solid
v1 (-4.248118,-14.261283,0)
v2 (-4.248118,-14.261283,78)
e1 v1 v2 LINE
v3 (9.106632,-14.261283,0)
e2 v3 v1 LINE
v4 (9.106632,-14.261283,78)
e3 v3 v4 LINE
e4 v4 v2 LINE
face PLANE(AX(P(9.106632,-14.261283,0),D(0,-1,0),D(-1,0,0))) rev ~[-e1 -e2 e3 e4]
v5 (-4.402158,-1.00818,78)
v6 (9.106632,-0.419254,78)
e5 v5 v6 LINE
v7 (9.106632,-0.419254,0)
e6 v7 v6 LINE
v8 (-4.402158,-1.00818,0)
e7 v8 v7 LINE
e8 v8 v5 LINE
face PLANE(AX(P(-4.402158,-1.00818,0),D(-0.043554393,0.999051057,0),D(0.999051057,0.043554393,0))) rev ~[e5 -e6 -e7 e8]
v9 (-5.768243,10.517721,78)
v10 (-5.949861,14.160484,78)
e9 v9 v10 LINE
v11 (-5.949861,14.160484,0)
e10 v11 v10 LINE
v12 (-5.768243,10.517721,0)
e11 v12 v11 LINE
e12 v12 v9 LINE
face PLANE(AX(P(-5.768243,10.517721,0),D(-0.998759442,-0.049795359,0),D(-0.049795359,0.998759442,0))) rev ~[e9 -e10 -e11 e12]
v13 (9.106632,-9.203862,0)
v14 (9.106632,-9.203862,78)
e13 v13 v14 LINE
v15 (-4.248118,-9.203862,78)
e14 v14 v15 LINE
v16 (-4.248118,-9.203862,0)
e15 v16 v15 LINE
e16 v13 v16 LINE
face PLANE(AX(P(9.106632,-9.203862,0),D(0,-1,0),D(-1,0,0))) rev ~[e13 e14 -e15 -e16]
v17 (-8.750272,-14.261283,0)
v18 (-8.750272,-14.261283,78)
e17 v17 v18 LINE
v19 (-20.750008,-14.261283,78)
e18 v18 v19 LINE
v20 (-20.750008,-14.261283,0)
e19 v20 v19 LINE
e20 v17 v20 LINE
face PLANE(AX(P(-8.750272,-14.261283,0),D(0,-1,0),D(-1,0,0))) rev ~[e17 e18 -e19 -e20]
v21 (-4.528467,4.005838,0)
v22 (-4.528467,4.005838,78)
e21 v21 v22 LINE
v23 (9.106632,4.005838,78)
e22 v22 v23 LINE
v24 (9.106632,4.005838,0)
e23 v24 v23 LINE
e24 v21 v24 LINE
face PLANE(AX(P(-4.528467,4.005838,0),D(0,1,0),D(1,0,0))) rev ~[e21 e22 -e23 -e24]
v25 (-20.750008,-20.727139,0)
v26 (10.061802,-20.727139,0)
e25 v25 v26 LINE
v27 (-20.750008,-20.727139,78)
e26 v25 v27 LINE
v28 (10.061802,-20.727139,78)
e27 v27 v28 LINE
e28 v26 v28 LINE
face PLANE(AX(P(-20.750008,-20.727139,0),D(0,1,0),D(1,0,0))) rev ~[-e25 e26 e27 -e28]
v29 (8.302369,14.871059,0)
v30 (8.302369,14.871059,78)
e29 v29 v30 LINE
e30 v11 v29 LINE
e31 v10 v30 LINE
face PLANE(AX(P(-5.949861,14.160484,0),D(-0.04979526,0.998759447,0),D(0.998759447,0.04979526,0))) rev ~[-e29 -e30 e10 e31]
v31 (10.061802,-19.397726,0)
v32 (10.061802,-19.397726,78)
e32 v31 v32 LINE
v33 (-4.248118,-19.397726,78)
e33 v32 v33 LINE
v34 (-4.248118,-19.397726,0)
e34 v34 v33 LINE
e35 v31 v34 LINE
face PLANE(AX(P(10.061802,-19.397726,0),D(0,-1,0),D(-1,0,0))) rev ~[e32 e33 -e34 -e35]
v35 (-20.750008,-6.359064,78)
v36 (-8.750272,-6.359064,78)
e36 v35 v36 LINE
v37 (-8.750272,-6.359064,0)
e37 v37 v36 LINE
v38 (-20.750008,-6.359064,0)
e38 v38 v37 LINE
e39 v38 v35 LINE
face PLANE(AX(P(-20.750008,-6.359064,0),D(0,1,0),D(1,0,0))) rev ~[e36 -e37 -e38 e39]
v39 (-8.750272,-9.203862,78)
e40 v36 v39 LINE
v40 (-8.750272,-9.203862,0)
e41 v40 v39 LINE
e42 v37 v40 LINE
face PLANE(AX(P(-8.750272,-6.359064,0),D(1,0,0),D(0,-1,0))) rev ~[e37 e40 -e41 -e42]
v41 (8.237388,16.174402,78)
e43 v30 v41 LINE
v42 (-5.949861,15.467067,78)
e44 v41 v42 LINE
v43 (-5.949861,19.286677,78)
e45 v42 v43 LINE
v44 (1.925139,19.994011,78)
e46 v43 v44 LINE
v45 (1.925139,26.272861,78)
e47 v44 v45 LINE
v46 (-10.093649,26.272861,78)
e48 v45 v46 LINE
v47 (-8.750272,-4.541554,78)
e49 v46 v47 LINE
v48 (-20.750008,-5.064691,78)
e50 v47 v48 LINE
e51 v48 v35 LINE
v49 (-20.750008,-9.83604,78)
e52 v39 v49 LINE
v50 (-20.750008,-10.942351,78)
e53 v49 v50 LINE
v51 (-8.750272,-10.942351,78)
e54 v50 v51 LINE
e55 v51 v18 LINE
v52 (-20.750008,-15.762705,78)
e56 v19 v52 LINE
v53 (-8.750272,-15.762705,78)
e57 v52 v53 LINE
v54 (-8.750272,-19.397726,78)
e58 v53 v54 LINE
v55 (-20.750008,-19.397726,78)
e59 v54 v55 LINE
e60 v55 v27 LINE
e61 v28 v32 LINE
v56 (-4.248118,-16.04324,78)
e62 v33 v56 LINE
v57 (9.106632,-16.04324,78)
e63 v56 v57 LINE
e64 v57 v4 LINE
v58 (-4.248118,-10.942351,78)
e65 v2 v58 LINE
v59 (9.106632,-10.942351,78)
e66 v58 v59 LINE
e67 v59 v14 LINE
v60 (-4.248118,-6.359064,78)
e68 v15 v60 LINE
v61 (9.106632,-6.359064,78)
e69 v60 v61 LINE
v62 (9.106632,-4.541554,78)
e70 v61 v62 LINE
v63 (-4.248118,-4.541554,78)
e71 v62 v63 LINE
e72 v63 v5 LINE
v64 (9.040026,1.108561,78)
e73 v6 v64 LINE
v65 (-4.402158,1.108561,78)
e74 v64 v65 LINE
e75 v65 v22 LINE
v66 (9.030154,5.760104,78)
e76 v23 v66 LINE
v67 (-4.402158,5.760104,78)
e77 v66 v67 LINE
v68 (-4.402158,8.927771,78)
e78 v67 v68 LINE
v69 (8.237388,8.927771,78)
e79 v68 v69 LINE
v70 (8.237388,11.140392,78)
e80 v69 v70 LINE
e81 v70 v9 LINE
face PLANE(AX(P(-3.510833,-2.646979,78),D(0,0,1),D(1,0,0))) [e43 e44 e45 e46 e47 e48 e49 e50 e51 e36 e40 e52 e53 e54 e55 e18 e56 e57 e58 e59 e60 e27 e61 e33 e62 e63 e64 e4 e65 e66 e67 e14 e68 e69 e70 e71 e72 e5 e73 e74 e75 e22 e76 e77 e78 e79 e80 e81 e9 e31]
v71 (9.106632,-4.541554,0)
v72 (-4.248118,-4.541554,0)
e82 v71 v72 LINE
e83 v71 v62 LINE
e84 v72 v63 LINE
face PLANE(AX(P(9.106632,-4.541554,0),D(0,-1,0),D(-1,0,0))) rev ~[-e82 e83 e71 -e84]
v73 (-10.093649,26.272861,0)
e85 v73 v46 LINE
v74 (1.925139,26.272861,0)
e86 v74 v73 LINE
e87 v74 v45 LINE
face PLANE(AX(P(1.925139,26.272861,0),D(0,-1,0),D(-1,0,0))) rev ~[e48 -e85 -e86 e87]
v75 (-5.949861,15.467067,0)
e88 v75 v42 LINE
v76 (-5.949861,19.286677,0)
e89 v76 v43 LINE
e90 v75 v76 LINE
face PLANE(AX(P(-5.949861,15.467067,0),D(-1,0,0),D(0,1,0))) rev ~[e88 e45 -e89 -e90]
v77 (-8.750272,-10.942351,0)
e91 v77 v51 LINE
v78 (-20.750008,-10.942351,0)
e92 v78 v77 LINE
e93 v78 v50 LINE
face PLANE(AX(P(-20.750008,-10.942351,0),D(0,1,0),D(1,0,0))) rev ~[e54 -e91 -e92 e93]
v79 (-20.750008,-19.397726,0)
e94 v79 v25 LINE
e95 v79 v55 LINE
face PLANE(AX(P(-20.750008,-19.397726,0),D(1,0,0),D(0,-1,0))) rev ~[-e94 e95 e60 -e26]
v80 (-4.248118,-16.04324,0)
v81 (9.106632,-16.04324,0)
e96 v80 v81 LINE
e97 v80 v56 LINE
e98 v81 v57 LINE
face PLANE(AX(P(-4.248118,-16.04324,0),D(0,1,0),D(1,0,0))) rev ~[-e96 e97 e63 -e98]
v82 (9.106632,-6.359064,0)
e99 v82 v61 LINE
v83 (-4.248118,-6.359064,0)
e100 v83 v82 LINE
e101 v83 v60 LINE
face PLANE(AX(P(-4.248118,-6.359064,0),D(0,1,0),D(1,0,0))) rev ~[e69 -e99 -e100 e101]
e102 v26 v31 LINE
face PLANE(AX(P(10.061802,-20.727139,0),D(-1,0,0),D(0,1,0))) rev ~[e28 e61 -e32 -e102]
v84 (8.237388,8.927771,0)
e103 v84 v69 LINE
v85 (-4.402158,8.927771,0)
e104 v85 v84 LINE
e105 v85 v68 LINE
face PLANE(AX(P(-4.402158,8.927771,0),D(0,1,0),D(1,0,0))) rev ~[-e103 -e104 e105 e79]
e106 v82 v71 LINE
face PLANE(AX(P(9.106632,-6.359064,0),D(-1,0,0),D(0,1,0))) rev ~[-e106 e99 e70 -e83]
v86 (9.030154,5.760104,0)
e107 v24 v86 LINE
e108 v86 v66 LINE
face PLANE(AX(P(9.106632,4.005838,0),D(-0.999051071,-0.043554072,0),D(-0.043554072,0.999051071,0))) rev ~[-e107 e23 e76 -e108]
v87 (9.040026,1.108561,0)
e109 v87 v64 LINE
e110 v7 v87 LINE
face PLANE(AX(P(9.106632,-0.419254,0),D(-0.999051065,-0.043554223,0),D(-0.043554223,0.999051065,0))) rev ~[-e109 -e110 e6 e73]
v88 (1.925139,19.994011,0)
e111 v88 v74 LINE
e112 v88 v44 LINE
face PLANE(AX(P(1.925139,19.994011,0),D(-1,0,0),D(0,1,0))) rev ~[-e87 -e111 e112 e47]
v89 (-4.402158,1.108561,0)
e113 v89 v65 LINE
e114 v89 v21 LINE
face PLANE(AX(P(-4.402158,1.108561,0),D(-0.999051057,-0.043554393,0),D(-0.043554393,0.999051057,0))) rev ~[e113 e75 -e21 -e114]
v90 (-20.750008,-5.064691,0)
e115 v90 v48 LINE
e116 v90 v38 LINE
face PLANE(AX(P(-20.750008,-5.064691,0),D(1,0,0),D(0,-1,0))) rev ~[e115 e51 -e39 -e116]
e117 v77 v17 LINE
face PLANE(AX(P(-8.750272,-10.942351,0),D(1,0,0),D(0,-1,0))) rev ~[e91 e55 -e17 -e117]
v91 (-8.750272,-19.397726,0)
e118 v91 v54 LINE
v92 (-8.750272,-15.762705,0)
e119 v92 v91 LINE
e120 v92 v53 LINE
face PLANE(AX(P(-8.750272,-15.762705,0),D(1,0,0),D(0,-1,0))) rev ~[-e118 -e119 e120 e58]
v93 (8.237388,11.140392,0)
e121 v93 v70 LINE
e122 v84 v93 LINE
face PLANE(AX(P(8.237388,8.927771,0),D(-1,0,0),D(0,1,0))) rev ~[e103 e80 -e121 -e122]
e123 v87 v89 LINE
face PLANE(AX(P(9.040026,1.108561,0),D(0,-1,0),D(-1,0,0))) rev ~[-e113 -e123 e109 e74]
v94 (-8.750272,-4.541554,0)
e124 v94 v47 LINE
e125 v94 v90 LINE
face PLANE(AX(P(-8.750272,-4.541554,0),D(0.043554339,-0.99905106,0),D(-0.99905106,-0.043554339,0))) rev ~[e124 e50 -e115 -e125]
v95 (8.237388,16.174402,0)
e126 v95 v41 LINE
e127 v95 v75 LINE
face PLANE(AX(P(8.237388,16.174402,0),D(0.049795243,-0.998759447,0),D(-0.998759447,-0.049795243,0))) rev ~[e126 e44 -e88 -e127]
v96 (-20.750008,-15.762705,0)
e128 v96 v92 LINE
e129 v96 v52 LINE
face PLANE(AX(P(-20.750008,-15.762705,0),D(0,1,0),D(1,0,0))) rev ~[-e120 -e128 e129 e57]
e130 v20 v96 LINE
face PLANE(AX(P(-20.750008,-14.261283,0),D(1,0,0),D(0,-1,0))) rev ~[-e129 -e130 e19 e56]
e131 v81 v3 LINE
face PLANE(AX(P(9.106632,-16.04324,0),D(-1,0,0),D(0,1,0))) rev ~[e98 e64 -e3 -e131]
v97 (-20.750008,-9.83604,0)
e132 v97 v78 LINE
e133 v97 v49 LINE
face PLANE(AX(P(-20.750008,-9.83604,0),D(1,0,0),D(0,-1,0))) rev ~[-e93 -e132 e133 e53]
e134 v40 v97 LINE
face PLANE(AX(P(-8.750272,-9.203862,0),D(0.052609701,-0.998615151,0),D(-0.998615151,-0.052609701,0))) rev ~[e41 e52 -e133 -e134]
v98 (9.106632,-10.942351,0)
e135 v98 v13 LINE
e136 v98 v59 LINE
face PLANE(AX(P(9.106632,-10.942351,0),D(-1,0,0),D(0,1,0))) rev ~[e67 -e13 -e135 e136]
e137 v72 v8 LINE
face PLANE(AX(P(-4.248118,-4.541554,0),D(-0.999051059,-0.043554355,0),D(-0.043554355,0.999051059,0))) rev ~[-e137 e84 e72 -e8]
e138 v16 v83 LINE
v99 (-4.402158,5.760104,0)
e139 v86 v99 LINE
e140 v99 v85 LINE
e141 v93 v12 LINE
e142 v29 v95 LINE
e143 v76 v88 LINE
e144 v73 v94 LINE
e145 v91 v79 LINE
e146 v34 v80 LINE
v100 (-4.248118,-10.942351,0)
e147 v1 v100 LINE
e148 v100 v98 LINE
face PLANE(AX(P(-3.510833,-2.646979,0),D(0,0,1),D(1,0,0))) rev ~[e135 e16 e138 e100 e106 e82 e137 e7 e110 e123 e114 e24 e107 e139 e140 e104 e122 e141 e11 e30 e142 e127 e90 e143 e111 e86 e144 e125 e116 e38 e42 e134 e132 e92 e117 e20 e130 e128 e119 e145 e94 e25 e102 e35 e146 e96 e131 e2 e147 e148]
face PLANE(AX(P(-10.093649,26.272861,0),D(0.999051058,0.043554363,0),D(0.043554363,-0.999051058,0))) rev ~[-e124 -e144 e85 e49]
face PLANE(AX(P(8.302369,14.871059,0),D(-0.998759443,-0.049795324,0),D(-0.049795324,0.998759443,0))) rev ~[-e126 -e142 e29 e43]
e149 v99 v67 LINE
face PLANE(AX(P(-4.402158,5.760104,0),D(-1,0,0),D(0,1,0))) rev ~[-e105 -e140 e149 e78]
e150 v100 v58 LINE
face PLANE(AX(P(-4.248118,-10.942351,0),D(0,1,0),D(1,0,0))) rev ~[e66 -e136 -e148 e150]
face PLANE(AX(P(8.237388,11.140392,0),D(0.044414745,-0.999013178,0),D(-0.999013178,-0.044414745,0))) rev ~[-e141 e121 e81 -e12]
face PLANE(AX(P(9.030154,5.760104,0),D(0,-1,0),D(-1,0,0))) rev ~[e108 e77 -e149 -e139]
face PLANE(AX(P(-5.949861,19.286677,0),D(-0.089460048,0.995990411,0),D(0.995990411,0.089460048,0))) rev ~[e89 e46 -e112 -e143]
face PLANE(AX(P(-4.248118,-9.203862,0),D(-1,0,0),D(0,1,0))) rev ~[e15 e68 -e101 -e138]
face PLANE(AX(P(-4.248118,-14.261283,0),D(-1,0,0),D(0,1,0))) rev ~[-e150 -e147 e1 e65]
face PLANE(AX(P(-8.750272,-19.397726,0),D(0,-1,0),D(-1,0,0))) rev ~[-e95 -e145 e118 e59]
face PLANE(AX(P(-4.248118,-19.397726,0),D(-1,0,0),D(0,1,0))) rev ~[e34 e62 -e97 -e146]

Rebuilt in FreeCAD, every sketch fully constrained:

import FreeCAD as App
import Part
import Sketcher
from FreeCAD import Vector


def add_polygon(sketch, points):
    """Adds a closed chain of lines whose ends are joined by coincident constraints."""
    first, n = sketch.GeometryCount, len(points)
    for a, b in zip(points, points[1:] + points[:1]):
        sketch.addGeometry(Part.LineSegment(App.Vector(*a, 0), App.Vector(*b, 0)), False)
    for i in range(n):
        sketch.addConstraint(Sketcher.Constraint("Coincident", first + i, 2, first + (i + 1) % n, 1))

doc = App.newDocument("Part")
params = doc.addObject("Spreadsheet::Sheet", "Params")
for row, (alias, value) in enumerate([
    ("pad1_length", "78 mm"),
], start=1):
    params.set(f"A{row}", alias)
    params.set(f"B{row}", "=" + value)
    params.setAlias(f"B{row}", alias)

body = doc.addObject("PartDesign::Body", "Body")

# Sketch on XY plane
sketch1 = doc.addObject("Sketcher::SketchObject", "Sketch")
body.addObject(sketch1)
sketch1.AttachmentSupport = (doc.XY_Plane, [""])
sketch1.MapMode = "FlatFace"
add_polygon(sketch1, [(1.925139, 26.272861), (-10.093649, 26.272861), (-8.750272, -4.541554), (-20.750008, -5.064691), (-20.750008, -6.359064), (-8.750272, -6.359064), (-8.750272, -9.203862), (-20.750008, -9.83604), (-20.750008, -10.942351), (-8.750272, -10.942351), (-8.750272, -14.261283), (-20.750008, -14.261283), (-20.750008, -15.762705), (-8.750272, -15.762705), (-8.750272, -19.397726), (-20.750008, -19.397726), (-20.750008, -20.727139), (10.061802, -20.727139), (10.061802, -19.397726), (-4.248118, -19.397726), (-4.248118, -16.04324), (9.106632, -16.04324), (9.106632, -14.261283), (-4.248118, -14.261283), (-4.248118, -10.942351), (9.106632, -10.942351), (9.106632, -9.203862), (-4.248118, -9.203862), (-4.248118, -6.359064), (9.106632, -6.359064), (9.106632, -4.541554), (-4.248118, -4.541554), (-4.402158, -1.00818), (9.106632, -0.419254), (9.040026, 1.108561), (-4.402158, 1.108561), (-4.528467, 4.005838), (9.106632, 4.005838), (9.030154, 5.760104), (-4.402158, 5.760104), (-4.402158, 8.927771), (8.237388, 8.927771), (8.237388, 11.140392), (-5.768243, 10.517721), (-5.949861, 14.160484), (8.302369, 14.871059), (8.237388, 16.174402), (-5.949861, 15.467067), (-5.949861, 19.286677), (1.925139, 19.994011)])  # lines 0-49
sketch1.addConstraint([
    Sketcher.Constraint("Horizontal", 0),
    Sketcher.Constraint("Vertical", 3),
    Sketcher.Constraint("Horizontal", 4),
    Sketcher.Constraint("Vertical", 5),
    Sketcher.Constraint("Vertical", 7),
    Sketcher.Constraint("Horizontal", 8),
    Sketcher.Constraint("Vertical", 9),
    Sketcher.Constraint("Horizontal", 10),
    Sketcher.Constraint("Vertical", 11),
    Sketcher.Constraint("Horizontal", 12),
    Sketcher.Constraint("Vertical", 13),
    Sketcher.Constraint("Horizontal", 14),
    Sketcher.Constraint("Vertical", 15),
    Sketcher.Constraint("Horizontal", 16),
    Sketcher.Constraint("Vertical", 17),
    Sketcher.Constraint("Horizontal", 18),
    Sketcher.Constraint("Vertical", 19),
    Sketcher.Constraint("Horizontal", 20),
    Sketcher.Constraint("Vertical", 21),
    Sketcher.Constraint("Horizontal", 22),
    Sketcher.Constraint("Vertical", 23),
    Sketcher.Constraint("Horizontal", 24),
    Sketcher.Constraint("Vertical", 25),
    Sketcher.Constraint("Horizontal", 26),
    Sketcher.Constraint("Vertical", 27),
    Sketcher.Constraint("Horizontal", 28),
    Sketcher.Constraint("Vertical", 29),
    Sketcher.Constraint("Horizontal", 30),
    Sketcher.Constraint("Horizontal", 34),
    Sketcher.Constraint("Horizontal", 36),
    Sketcher.Constraint("Horizontal", 38),
    Sketcher.Constraint("Vertical", 39),
    Sketcher.Constraint("Horizontal", 40),
    Sketcher.Constraint("Vertical", 41),
    Sketcher.Constraint("Vertical", 47),
    Sketcher.Constraint("Vertical", 49),
    Sketcher.Constraint("DistanceX", 36, 1, 36, 2, 13.635099),
    Sketcher.Constraint("DistanceY", 5, 2, 5, 1, 2.844798),
    Sketcher.Constraint("DistanceY", 27, 1, 27, 2, 2.844798),
    Sketcher.Constraint("DistanceX", 47, 2, 48, 2, 7.875),
    Sketcher.Constraint("DistanceX", 43, 2, 48, 2, 7.875),
    Sketcher.Constraint("DistanceX", 16, 1, 16, 2, 30.81181),
    Sketcher.Constraint("DistanceX", 18, 2, 18, 1, 14.30992),
    Sketcher.Constraint("DistanceX", 20, 1, 20, 2, 13.35475),
    Sketcher.Constraint("DistanceX", 22, 2, 22, 1, 13.35475),
    Sketcher.Constraint("DistanceX", 24, 1, 24, 2, 13.35475),
    Sketcher.Constraint("DistanceX", 26, 2, 26, 1, 13.35475),
    Sketcher.Constraint("DistanceX", 28, 1, 28, 2, 13.35475),
    Sketcher.Constraint("DistanceX", 30, 2, 30, 1, 13.35475),
    Sketcher.Constraint("DistanceY", 7, 2, 7, 1, 1.106311),
    Sketcher.Constraint("DistanceY", 11, 2, 11, 1, 1.501422),
    Sketcher.Constraint("DistanceY", 13, 2, 13, 1, 3.635021),
    Sketcher.Constraint("DistanceY", 25, 1, 25, 2, 1.738489),
    Sketcher.Constraint("DistanceY", 29, 1, 29, 2, 1.81751),
    Sketcher.Constraint("DistanceY", 41, 1, 41, 2, 2.212621),
    Sketcher.Constraint("DistanceY", 47, 1, 47, 2, 3.81961),
    Sketcher.Constraint("DistanceY", 49, 1, 49, 2, 6.27885),
    Sketcher.Constraint("DistanceY", 15, 2, 6, 2, 10.891099),
    Sketcher.Constraint("DistanceY", 16, 2, 20, 2, 4.683899),
    Sketcher.Constraint("DistanceY", 26, 2, 4, 2, 2.844798),
    Sketcher.Constraint("DistanceY", 29, 2, 32, 2, 4.1223),
    Sketcher.Constraint("DistanceY", 25, 2, 36, 2, 13.2097),
    Sketcher.Constraint("DistanceY", 31, 2, 42, 2, 11.525901),
    Sketcher.Constraint("DistanceY", 33, 2, 44, 2, 13.762498),
    Sketcher.Constraint("DistanceY", 44, 2, 49, 2, 11.401802),
    Sketcher.Constraint("Distance", 31, 3.53673),
    Sketcher.Constraint("Distance", 32, 13.521621),
    Sketcher.Constraint("Distance", 35, 2.900029),
    Sketcher.Constraint("Distance", 45, 1.304962),
    Sketcher.Constraint("Distance", 46, 14.204871),
    Sketcher.Constraint("DistanceX", 0, 2, 0, 1, 12.018788),
    Sketcher.Constraint("DistanceX", 4, 1, 4, 2, 11.999736),
    Sketcher.Constraint("DistanceX", 8, 1, 8, 2, 11.999736),
    Sketcher.Constraint("DistanceX", 10, 2, 10, 1, 11.999736),
    Sketcher.Constraint("DistanceX", 12, 1, 12, 2, 11.999736),
    Sketcher.Constraint("DistanceX", 14, 2, 14, 1, 11.999736),
    Sketcher.Constraint("DistanceX", 34, 2, 34, 1, 13.442184),
    Sketcher.Constraint("DistanceX", 38, 2, 38, 1, 13.432312),
    Sketcher.Constraint("DistanceX", 40, 1, 40, 2, 12.639546),
    Sketcher.Constraint("DistanceY", 3, 2, 3, 1, 1.294373),
    Sketcher.Constraint("DistanceY", 9, 2, 9, 1, 3.318932),
    Sketcher.Constraint("DistanceY", 17, 1, 17, 2, 1.329413),
    Sketcher.Constraint("DistanceY", 21, 1, 21, 2, 1.781957),
    Sketcher.Constraint("DistanceY", 23, 1, 23, 2, 3.318932),
    Sketcher.Constraint("DistanceY", 39, 1, 39, 2, 3.167667),
    Sketcher.Constraint("DistanceX", 0, 2, -1, 1, 10.093649),
    Sketcher.Constraint("DistanceY", -1, 1, 0, 2, 26.272861),
    Sketcher.Constraint("DistanceX", 2, 2, -1, 1, 20.750008),
    Sketcher.Constraint("DistanceY", 2, 2, -1, 1, 5.064691),
    Sketcher.Constraint("DistanceX", 6, 2, -1, 1, 20.750008),
    Sketcher.Constraint("DistanceY", 31, 2, -1, 1, 1.00818),
    Sketcher.Constraint("DistanceY", -1, 1, 39, 2, 8.927771),
    Sketcher.Constraint("DistanceX", -1, 1, 44, 2, 8.302369),
    Sketcher.Constraint("DistanceY", 3, 2, 1, 2, 1.81751),
    Sketcher.Constraint("DistanceX", 34, 2, 30, 2, 0.15404),
    Sketcher.Constraint("DistanceX", 37, 2, 33, 2, 0.009872),
    Sketcher.Constraint("DistanceX", 43, 2, 42, 2, 0.181618),
    Sketcher.Constraint("DistanceY", 38, 2, 43, 2, 8.40038),
    Sketcher.Constraint("DistanceX", 45, 2, 44, 2, 0.064981),
    Sketcher.Constraint("Distance", 1, 30.843684),
])
pad1 = doc.addObject("PartDesign::Pad", "Pad")
body.addObject(pad1)
pad1.Profile = sketch1
pad1.setExpression("Length", "Params.pad1_length")

doc.recompute()
